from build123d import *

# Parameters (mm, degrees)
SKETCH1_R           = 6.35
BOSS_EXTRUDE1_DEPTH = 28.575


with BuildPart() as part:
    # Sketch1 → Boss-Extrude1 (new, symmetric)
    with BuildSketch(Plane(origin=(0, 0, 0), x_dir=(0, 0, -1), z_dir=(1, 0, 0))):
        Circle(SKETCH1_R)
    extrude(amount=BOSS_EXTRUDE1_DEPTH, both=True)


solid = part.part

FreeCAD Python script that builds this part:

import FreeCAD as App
import Part
import Sketcher
from FreeCAD import Vector
Q = App.Units.Quantity

doc = App.newDocument("Part")
body = doc.addObject("PartDesign::Body", "Body")

# Sketch on YZ plane
sketch1 = body.newObject("Sketcher::SketchObject", "Sketch")
sketch1.AttachmentSupport = (doc.getObject("YZ_Plane"), [""])
sketch1.MapMode = "FlatFace"
sketch1.addGeometry(Part.Circle(Vector(0, 0, 0), Vector(0, 0, 1), 6), False)
sketch1.addConstraint(Sketcher.Constraint("Coincident", 0, 3, -1, 1))
sketch1.addConstraint(Sketcher.Constraint("Diameter", 0, Q("0.5 in")))
pad1 = body.newObject("PartDesign::Pad", "Pad")
pad1.Profile = sketch1
pad1.Length = Q("2.25 in")
pad1.Midplane = True

doc.recompute()
